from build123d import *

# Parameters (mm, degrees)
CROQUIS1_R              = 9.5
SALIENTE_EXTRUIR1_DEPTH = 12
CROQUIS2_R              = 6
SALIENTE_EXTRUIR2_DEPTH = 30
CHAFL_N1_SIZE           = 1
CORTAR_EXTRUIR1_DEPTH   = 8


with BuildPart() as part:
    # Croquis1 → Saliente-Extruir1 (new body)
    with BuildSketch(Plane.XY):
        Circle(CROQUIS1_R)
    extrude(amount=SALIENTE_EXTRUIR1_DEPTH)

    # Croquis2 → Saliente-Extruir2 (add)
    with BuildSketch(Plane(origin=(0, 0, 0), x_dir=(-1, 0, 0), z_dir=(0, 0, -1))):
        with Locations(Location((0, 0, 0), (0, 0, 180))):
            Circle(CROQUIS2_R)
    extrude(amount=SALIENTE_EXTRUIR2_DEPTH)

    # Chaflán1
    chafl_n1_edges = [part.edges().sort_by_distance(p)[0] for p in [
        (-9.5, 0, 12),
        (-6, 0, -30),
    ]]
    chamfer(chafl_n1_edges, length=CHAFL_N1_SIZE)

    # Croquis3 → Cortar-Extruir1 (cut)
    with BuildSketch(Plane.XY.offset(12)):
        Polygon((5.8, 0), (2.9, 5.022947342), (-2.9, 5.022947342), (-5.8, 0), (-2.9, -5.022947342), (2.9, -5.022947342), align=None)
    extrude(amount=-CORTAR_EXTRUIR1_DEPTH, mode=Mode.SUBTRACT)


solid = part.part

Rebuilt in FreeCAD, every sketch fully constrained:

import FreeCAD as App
import Part
import Sketcher
from FreeCAD import Vector
Q = App.Units.Quantity


def edges_at(feature, points):
    """Names of the edges that pass closest to the given points."""
    edges = feature.Shape.Edges
    near = lambda p: min(range(len(edges)), key=lambda i: edges[i].distToShape(Part.Vertex(*p))[0])
    return sorted({f"Edge{near(p) + 1}" for p in points})


def add_polygon(sketch, points):
    """Adds a closed chain of lines whose ends are joined by coincident constraints."""
    first, n = sketch.GeometryCount, len(points)
    for a, b in zip(points, points[1:] + points[:1]):
        sketch.addGeometry(Part.LineSegment(App.Vector(*a, 0), App.Vector(*b, 0)), False)
    for i in range(n):
        sketch.addConstraint(Sketcher.Constraint("Coincident", first + i, 2, first + (i + 1) % n, 1))

doc = App.newDocument("Part")
body = doc.addObject("PartDesign::Body", "Body")

# Sketch on XY plane
sketch1 = body.newObject("Sketcher::SketchObject", "Sketch")
sketch1.AttachmentSupport = (doc.getObject("XY_Plane"), [""])
sketch1.MapMode = "FlatFace"
sketch1.addGeometry(Part.Circle(Vector(0, 0, 0), Vector(0, 0, 1), 10), False)
sketch1.addConstraint(Sketcher.Constraint("Coincident", 0, 3, -1, 1))
sketch1.addConstraint(Sketcher.Constraint("Diameter", 0, Q("19 mm")))
pad1 = body.newObject("PartDesign::Pad", "Pad")
pad1.Profile = sketch1
pad1.Length = 12

# Sketch on XY plane
sketch2 = body.newObject("Sketcher::SketchObject", "Sketch001")
sketch2.AttachmentSupport = (doc.getObject("XY_Plane"), [""])
sketch2.MapMode = "FlatFace"
sketch2.addGeometry(Part.Circle(Vector(0, 0, 0), Vector(0, 0, 1), 6), False)
sketch2.addConstraint(Sketcher.Constraint("Coincident", 0, 3, -1, 1))
sketch2.addConstraint(Sketcher.Constraint("Diameter", 0, Q("12 mm")))
pad2 = body.newObject("PartDesign::Pad", "Pad001")
pad2.Profile = sketch2
pad2.Length = 30
pad2.Reversed = True
doc.recompute()

chamfer = body.newObject("PartDesign::Chamfer", "Chamfer")
chamfer.Base = (pad2, edges_at(pad2, [(-9.5, 0, 12), (-6, 0, -30)]))
chamfer.Size = 1

# Sketch on XY plane
sketch3 = body.newObject("Sketcher::SketchObject", "Sketch002")
sketch3.AttachmentSupport = (doc.getObject("XY_Plane"), [""])
sketch3.MapMode = "FlatFace"
sketch3.AttachmentOffset = App.Placement(Vector(0, 0, 12), App.Rotation())
add_polygon(sketch3, [(6, 0), (3, 5), (-3, 5), (-6, 0), (-3, -5), (3, -5)])  # lines 0-5
sketch3.addConstraint(Sketcher.Constraint("Horizontal", 1))
sketch3.addConstraint(Sketcher.Constraint("Horizontal", 4))
sketch3.addConstraint(Sketcher.Constraint("Symmetric", 0, 2, 3, 2, -1, 1))
sketch3.addConstraint(Sketcher.Constraint("Symmetric", 2, 2, 5, 2, -1, 1))
sketch3.addConstraint(Sketcher.Constraint("PointOnObject", 2, 2, -1))
sketch3.addConstraint(Sketcher.Constraint("Parallel", 2, 5))
sketch3.addConstraint(Sketcher.Constraint("Vertical", 1, 2, 3, 2))
sketch3.addConstraint(Sketcher.Constraint("Angle", 0, Q("120 deg")))
sketch3.addConstraint(Sketcher.Constraint("DistanceX", 1, 2, 1, 1, Q("5.8 mm")))
sketch3.addConstraint(Sketcher.Constraint("Distance", 0, Q("5.8 mm")))
pocket1 = body.newObject("PartDesign::Pocket", "Pocket")
pocket1.Profile = sketch3
pocket1.Length = 8

doc.recompute()
